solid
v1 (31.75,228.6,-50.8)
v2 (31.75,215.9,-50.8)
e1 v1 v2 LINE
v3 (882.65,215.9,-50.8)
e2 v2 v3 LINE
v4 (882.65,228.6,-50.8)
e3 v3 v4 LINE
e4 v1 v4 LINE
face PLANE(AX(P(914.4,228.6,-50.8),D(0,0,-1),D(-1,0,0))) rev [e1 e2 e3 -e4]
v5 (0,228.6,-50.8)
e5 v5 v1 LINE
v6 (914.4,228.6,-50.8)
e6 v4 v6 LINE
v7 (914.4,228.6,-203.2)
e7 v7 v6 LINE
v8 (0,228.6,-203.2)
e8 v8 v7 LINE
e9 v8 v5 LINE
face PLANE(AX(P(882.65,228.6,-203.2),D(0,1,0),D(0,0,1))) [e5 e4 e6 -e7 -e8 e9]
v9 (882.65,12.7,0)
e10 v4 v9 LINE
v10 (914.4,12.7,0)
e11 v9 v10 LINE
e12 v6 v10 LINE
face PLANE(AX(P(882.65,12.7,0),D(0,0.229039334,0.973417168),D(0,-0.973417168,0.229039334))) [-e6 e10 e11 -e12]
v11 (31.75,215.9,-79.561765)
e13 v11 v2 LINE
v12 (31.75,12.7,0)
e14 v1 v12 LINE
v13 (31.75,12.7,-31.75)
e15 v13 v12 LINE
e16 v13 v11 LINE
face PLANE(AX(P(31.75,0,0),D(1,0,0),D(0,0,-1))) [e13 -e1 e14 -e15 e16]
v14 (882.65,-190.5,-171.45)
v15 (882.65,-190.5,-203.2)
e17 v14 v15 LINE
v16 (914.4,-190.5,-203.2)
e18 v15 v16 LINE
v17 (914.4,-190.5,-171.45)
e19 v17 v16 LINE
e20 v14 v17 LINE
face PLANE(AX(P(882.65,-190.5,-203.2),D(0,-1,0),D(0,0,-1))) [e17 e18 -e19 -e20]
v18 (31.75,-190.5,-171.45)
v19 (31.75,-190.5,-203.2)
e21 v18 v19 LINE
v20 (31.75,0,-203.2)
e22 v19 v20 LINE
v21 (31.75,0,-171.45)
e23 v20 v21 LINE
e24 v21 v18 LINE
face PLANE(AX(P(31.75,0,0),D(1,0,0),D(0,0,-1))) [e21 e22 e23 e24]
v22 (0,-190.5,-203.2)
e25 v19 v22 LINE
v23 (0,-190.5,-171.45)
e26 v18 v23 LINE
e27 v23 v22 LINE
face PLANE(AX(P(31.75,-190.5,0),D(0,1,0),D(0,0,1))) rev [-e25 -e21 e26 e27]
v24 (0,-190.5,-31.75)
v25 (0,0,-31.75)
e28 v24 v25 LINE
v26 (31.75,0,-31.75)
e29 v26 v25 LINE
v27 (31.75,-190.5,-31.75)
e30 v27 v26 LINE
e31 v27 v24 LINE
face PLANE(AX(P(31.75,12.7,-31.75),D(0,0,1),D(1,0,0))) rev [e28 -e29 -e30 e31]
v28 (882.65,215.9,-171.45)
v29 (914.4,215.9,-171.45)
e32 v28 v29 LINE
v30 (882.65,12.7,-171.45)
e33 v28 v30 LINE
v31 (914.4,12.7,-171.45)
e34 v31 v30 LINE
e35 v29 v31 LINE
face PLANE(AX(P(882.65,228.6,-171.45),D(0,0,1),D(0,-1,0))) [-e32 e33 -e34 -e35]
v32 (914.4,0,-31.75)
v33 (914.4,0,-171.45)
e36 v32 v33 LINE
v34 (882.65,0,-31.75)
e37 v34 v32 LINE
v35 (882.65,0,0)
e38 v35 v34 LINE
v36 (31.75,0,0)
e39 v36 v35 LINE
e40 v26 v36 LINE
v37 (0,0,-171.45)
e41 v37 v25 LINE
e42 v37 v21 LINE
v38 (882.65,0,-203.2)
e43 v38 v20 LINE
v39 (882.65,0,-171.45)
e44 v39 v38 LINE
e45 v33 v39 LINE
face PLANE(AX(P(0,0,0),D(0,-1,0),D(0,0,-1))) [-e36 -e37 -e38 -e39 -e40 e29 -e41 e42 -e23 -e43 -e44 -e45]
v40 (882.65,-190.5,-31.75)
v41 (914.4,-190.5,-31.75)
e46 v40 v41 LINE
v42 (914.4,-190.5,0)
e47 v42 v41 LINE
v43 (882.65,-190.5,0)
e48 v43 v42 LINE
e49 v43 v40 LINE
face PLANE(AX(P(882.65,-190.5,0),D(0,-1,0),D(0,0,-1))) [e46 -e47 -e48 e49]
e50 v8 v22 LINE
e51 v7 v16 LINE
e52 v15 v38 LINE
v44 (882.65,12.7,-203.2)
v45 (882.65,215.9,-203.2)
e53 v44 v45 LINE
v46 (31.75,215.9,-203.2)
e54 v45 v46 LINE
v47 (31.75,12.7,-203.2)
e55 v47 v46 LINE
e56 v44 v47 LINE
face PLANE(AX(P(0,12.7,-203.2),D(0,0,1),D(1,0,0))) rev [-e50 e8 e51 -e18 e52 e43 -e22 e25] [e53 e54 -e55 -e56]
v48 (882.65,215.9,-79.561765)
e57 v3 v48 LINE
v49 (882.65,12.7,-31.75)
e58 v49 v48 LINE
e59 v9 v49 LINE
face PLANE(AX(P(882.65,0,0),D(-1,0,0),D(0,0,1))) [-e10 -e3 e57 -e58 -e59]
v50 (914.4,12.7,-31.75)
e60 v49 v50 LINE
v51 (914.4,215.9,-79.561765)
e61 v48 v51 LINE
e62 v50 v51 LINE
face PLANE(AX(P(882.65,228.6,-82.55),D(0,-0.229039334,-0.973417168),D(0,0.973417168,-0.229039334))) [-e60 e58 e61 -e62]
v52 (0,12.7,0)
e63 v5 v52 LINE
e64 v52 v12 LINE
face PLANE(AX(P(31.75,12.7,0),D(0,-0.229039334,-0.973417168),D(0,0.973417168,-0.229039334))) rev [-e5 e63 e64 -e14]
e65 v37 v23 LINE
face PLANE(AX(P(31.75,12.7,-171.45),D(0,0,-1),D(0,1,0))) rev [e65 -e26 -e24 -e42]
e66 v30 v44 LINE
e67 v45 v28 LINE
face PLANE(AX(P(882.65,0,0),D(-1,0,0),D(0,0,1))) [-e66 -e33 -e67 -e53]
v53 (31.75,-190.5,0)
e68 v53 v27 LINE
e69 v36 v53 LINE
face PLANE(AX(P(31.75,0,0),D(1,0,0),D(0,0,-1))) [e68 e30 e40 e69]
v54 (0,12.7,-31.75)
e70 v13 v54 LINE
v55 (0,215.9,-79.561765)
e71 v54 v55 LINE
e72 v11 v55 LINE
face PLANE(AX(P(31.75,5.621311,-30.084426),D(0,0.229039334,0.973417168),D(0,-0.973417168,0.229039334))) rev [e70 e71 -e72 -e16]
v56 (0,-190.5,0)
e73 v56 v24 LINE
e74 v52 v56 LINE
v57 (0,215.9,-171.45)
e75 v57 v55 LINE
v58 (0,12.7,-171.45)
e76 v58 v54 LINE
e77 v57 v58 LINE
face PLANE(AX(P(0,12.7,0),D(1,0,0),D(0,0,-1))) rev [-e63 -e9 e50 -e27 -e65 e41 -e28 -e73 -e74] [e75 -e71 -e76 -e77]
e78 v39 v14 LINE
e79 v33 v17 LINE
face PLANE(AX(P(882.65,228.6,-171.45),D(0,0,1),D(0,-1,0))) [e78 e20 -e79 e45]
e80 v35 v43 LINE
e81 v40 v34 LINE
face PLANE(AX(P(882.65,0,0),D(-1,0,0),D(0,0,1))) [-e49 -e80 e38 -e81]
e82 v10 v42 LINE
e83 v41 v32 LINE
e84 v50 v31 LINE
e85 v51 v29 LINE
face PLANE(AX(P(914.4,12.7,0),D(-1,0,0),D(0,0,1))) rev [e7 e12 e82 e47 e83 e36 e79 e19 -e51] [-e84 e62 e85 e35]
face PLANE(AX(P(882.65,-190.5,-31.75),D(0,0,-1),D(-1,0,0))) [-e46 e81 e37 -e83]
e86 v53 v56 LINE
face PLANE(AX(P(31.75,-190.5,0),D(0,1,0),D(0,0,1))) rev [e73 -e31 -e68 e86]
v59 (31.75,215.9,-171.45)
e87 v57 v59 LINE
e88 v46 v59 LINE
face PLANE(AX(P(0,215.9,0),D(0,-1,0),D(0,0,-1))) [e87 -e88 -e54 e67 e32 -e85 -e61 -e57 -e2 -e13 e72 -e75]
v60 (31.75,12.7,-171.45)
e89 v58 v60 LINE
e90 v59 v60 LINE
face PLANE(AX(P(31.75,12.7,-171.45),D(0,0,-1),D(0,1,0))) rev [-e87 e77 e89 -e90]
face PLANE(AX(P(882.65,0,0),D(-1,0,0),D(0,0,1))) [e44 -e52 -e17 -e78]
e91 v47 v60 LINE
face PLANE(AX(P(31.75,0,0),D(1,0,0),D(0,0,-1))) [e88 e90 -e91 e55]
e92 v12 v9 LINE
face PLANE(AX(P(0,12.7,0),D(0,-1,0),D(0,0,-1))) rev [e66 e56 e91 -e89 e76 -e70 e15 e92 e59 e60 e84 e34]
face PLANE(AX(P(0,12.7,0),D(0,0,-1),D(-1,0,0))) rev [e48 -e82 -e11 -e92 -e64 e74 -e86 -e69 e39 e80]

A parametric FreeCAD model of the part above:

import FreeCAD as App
import Part
import Sketcher

V = App.Vector
Q = App.Units.Quantity


def add_polygon(sketch, points):
    """Adds a closed chain of lines whose ends are joined by coincident constraints."""
    first, n = sketch.GeometryCount, len(points)
    for a, b in zip(points, points[1:] + points[:1]):
        sketch.addGeometry(Part.LineSegment(App.Vector(*a, 0), App.Vector(*b, 0)), False)
    for i in range(n):
        sketch.addConstraint(Sketcher.Constraint("Coincident", first + i, 2, first + (i + 1) % n, 1))

doc = App.newDocument("Part")
body = doc.addObject("PartDesign::Body", "Body")

sketch1 = doc.addObject("Sketcher::SketchObject", "Sketch")
body.addObject(sketch1)
sketch1.AttachmentSupport = (doc.XZ_Plane, [""])
sketch1.MapMode = "FlatFace"
add_polygon(sketch1, [(0, -203), (0, 0), (914, 0), (914, -203)])
sketch1.addConstraint([
    Sketcher.Constraint("Vertical", 0),
    Sketcher.Constraint("Horizontal", 1),
    Sketcher.Constraint("Vertical", 2),
    Sketcher.Constraint("Horizontal", 3),
    Sketcher.Constraint("Coincident", 0, 2, -1, 1),
    Sketcher.Constraint("DistanceX", 1, 1, 1, 2, Q("36 in")),
    Sketcher.Constraint("DistanceY", 0, 1, 0, 2, Q("8 in")),
])
pad1 = doc.addObject("PartDesign::Pad", "Pad")
body.addObject(pad1)
pad1.Profile = sketch1
pad1.Length = Q("0.5 in")
pad1.Reversed = True
body2 = doc.addObject("PartDesign::Body", "Body001")

sketch2 = doc.addObject("Sketcher::SketchObject", "Sketch001")
body2.addObject(sketch2)
sketch2.AttachmentSupport = (doc.getObject("XZ_Plane001"), [""])
sketch2.MapMode = "FlatFace"
sketch2.AttachmentOffset = App.Placement(V(0, 0, -8.5 * 25.4), App.Rotation())
add_polygon(sketch2, [(0, -203), (0, -51), (914, -51), (914, -203)])
sketch2.addConstraint([
    Sketcher.Constraint("Vertical", 0),
    Sketcher.Constraint("Horizontal", 1),
    Sketcher.Constraint("Vertical", 2),
    Sketcher.Constraint("Horizontal", 3),
    Sketcher.Constraint("PointOnObject", 0, 2, -2),
    Sketcher.Constraint("DistanceX", 1, 1, 1, 2, Q("36 in")),
    Sketcher.Constraint("DistanceY", 0, 1, 0, 2, Q("6 in")),
    Sketcher.Constraint("DistanceY", 0, 2, -1, 1, Q("2 in")),
])
pad2 = doc.addObject("PartDesign::Pad", "Pad001")
body2.addObject(pad2)
pad2.Profile = sketch2
pad2.Length = Q("0.5 in")
pad2.Reversed = True
body.AllowCompound = True
doc.recompute()

boolean = doc.addObject("PartDesign::Boolean", "Boolean")
body.addObject(boolean)
boolean.Type = "Fuse"
boolean.addObjects([body2])

sketch3 = doc.addObject("Sketcher::SketchObject", "Sketch002")
body.addObject(sketch3)
sketch3.AttachmentSupport = (doc.YZ_Plane, [""])
sketch3.MapMode = "FlatFace"
sketch3.AttachmentOffset = App.Placement(V(0, 0, 36 * 25.4), App.Rotation())
add_polygon(sketch3, [(229, -171), (-190, -171), (-190, -203), (229, -203)])
add_polygon(sketch3, [(13, 0), (-190, 0), (-190, -32), (13, -32), (229, -83), (229, -51)])
sketch3.addConstraint([
    Sketcher.Constraint("Horizontal", 0),
    Sketcher.Constraint("Vertical", 1),
    Sketcher.Constraint("Horizontal", 2),
    Sketcher.Constraint("Vertical", 3),
    Sketcher.Constraint("Horizontal", 4),
    Sketcher.Constraint("Vertical", 5),
    Sketcher.Constraint("Horizontal", 6),
    Sketcher.Constraint("Vertical", 8),
    Sketcher.Constraint("PointOnObject", 4, 2, -1),
    Sketcher.Constraint("Parallel", 7, 9),
    Sketcher.Constraint("Vertical", 1, 2, 4, 2),
    Sketcher.Constraint("Vertical", 3, 2, 7, 2),
    Sketcher.Constraint("Vertical", 6, 2, 9, 2),
    Sketcher.Constraint("Equal", 3, 5),
    Sketcher.Constraint("DistanceX", 4, 2, 4, 1, Q("8 in")),
    Sketcher.Constraint("DistanceX", 0, 2, 0, 1, Q("16.5 in")),
    Sketcher.Constraint("DistanceY", 1, 2, -1, 1, Q("8 in")),
    Sketcher.Constraint("DistanceX", -1, 1, 2, 2, Q("9 in")),
    Sketcher.Constraint("DistanceY", 8, 2, -1, 1, Q("2 in")),
    Sketcher.Constraint("DistanceY", 1, 2, 1, 1, Q("1.25 in")),
])
pad3 = doc.addObject("PartDesign::Pad", "Pad002")
body.addObject(pad3)
pad3.Profile = sketch3
pad3.Length = Q("1.25 in")
pad3.Reversed = True

sketch4 = doc.addObject("Sketcher::SketchObject", "Sketch003")
body.addObject(sketch4)
sketch4.AttachmentSupport = (doc.YZ_Plane, [""])
sketch4.MapMode = "FlatFace"
add_polygon(sketch4, [(229, -171), (-190, -171), (-190, -203), (229, -203)])
add_polygon(sketch4, [(13, 0), (-190, 0), (-190, -32), (13, -32), (229, -83), (229, -51)])
sketch4.addConstraint([
    Sketcher.Constraint("Horizontal", 0),
    Sketcher.Constraint("Vertical", 1),
    Sketcher.Constraint("Horizontal", 2),
    Sketcher.Constraint("Vertical", 3),
    Sketcher.Constraint("Horizontal", 4),
    Sketcher.Constraint("Vertical", 5),
    Sketcher.Constraint("Horizontal", 6),
    Sketcher.Constraint("Vertical", 8),
    Sketcher.Constraint("PointOnObject", 4, 2, -1),
    Sketcher.Constraint("Parallel", 7, 9),
    Sketcher.Constraint("Vertical", 1, 2, 4, 2),
    Sketcher.Constraint("Vertical", 3, 2, 7, 2),
    Sketcher.Constraint("Vertical", 6, 2, 9, 2),
    Sketcher.Constraint("Equal", 3, 5),
    Sketcher.Constraint("DistanceX", 4, 2, 4, 1, Q("8 in")),
    Sketcher.Constraint("DistanceX", 0, 2, 0, 1, Q("16.5 in")),
    Sketcher.Constraint("DistanceY", 1, 2, -1, 1, Q("8 in")),
    Sketcher.Constraint("DistanceX", -1, 1, 2, 2, Q("9 in")),
    Sketcher.Constraint("DistanceY", 8, 2, -1, 1, Q("2 in")),
    Sketcher.Constraint("DistanceY", 1, 2, 1, 1, Q("1.25 in")),
])
pad4 = doc.addObject("PartDesign::Pad", "Pad003")
body.addObject(pad4)
pad4.Profile = sketch4
pad4.Length = Q("1.25 in")

doc.recompute()
